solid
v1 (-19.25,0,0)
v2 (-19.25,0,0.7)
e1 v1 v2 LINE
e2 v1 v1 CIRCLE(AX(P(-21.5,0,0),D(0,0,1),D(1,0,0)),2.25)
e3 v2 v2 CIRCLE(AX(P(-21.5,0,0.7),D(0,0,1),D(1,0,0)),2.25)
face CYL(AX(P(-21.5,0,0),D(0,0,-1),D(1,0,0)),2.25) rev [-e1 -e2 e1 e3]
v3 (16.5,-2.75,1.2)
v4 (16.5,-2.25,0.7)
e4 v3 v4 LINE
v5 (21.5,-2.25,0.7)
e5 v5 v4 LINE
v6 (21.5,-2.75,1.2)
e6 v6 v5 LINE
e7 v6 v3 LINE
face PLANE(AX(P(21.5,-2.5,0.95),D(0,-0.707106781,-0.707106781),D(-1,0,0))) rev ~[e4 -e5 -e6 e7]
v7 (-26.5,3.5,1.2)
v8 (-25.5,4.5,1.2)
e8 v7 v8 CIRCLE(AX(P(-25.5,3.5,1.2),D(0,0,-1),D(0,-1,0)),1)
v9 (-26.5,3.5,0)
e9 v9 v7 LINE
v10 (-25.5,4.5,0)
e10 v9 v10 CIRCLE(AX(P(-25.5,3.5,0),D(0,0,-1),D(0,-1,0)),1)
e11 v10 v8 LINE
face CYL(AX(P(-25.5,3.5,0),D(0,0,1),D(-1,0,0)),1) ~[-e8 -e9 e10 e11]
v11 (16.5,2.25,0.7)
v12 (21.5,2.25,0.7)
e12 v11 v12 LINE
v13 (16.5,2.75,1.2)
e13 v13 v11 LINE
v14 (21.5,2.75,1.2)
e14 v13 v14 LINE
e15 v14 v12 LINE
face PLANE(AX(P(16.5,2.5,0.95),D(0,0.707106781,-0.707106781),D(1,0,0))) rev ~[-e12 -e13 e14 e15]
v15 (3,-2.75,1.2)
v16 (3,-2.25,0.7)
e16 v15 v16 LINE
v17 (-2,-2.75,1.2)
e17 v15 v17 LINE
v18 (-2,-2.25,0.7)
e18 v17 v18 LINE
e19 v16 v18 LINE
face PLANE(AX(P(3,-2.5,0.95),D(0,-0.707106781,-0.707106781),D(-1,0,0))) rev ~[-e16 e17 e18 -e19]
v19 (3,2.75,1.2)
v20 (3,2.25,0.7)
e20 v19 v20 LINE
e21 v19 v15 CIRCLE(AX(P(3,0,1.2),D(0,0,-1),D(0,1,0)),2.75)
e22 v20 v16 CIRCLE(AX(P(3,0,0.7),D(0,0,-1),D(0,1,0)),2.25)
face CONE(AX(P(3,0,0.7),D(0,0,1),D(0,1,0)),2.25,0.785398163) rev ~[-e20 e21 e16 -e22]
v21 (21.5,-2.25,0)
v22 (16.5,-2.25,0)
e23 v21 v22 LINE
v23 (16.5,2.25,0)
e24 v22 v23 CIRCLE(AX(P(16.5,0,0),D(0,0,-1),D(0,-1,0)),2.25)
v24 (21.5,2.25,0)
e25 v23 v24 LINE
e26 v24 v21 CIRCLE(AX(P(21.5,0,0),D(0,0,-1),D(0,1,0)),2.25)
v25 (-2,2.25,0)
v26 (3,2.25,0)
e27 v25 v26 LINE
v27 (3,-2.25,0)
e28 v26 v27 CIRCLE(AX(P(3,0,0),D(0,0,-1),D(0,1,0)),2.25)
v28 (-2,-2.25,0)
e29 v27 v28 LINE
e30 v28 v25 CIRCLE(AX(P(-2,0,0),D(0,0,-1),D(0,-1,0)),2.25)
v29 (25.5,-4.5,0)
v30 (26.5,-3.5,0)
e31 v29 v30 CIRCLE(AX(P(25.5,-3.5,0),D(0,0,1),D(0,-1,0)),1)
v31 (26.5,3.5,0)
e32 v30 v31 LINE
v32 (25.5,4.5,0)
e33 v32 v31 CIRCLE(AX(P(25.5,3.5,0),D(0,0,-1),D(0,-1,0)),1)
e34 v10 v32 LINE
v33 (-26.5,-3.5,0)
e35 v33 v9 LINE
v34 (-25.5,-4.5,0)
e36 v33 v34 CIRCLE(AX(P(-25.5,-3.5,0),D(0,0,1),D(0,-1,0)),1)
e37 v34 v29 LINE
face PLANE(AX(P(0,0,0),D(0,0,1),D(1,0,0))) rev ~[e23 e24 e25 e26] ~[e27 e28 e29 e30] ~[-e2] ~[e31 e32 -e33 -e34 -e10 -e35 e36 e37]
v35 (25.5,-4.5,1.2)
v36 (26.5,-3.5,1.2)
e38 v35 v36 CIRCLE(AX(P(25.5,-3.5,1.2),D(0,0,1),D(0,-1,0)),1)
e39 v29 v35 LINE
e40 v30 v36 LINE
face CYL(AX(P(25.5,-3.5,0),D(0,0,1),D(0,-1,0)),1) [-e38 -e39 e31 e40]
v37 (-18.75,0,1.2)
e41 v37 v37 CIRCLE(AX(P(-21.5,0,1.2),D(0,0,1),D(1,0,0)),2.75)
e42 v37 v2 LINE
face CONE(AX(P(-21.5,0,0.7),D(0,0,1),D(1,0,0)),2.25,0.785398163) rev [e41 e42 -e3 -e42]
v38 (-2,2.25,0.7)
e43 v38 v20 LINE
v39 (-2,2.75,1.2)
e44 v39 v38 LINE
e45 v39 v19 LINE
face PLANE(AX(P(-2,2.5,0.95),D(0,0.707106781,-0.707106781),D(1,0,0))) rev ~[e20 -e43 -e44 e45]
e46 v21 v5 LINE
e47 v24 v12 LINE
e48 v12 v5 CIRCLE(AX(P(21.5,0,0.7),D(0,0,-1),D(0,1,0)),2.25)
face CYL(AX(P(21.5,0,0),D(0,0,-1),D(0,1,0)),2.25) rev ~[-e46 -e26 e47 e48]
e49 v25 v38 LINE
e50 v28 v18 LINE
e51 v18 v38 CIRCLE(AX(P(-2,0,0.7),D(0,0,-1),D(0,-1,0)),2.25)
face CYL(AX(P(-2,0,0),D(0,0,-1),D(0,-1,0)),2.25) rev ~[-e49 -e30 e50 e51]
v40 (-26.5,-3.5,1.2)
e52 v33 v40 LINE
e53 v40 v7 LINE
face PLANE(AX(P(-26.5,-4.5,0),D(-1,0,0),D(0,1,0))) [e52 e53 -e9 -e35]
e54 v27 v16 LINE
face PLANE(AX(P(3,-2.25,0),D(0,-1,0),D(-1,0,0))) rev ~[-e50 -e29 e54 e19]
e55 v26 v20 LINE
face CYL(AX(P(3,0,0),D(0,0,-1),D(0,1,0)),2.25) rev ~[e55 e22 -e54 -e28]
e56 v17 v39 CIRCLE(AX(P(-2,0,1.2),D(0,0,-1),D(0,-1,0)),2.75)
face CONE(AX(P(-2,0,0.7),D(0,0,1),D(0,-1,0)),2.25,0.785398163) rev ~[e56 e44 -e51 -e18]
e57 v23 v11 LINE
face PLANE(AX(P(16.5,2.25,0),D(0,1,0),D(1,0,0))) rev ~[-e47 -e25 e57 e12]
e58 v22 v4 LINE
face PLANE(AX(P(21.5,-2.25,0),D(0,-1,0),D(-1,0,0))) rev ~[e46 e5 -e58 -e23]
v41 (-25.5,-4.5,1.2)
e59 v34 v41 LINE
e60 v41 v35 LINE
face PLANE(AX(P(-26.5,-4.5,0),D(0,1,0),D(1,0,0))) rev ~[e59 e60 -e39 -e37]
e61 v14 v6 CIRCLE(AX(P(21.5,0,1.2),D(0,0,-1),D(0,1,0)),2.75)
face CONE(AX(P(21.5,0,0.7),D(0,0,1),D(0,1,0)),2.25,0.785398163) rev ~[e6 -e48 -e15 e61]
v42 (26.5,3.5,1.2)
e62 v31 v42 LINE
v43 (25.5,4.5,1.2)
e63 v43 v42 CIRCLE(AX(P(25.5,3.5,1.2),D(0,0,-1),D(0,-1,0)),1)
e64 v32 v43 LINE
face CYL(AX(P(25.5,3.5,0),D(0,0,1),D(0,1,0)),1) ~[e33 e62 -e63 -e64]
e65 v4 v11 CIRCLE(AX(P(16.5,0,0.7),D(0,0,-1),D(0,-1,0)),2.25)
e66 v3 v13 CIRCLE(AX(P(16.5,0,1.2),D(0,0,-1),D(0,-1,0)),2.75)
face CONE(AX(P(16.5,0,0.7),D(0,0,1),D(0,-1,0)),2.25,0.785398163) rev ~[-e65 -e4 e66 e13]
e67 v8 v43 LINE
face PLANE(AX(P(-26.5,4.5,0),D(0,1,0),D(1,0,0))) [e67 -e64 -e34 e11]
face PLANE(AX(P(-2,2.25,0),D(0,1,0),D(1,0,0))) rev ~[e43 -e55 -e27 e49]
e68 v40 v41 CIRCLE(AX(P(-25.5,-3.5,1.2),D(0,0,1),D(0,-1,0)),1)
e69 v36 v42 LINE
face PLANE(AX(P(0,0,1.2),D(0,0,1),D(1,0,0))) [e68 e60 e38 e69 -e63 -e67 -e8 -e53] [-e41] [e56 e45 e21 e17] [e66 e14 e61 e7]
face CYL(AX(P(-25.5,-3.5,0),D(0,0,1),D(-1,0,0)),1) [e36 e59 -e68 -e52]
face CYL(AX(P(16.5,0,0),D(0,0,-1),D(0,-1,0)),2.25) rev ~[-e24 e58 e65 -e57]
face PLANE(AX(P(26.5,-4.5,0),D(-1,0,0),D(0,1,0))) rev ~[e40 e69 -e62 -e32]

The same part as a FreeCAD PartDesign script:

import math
import FreeCAD as App
import Part
import Sketcher

V = App.Vector
Q = App.Units.Quantity


def edges_at(feature, points):
    """Names of the edges that pass closest to the given points."""
    edges = feature.Shape.Edges
    near = lambda p: min(range(len(edges)), key=lambda i: edges[i].distToShape(Part.Vertex(*p))[0])
    return sorted({f"Edge{near(p) + 1}" for p in points})

doc = App.newDocument("Part")
params = doc.addObject("Spreadsheet::Sheet", "Params")
for row, (alias, value) in enumerate([
    ("sketch1_diameter", "4.5 mm"),
    ("sketch1_width", "53 mm"),
    ("sketch1_width2", "5 mm"),
    ("sketch1_height", "9 mm"),
    ("pad1_length", "1.2 mm"),
    ("fillet_radius", "1 mm"),
    ("chamfer_size", "0.5 mm"),
], start=1):
    params.set(f"A{row}", alias)
    params.set(f"B{row}", "=" + value)
    params.setAlias(f"B{row}", alias)

body = doc.addObject("PartDesign::Body", "Body")

# Sketch on XY plane
sketch1 = body.newObject("Sketcher::SketchObject", "Sketch")
sketch1.AttachmentSupport = (doc.getObject("XY_Plane"), [""])
sketch1.MapMode = "FlatFace"
sketch1.addGeometry([
    Part.LineSegment(V(-26.5, 4.5, 0), V(-26.5, -4.5, 0)),  # 0
    Part.LineSegment(V(-26.5, -4.5, 0), V(26.5, -4.5, 0)),  # 1
    Part.LineSegment(V(26.5, -4.5, 0), V(26.5, 4.5, 0)),  # 2
    Part.LineSegment(V(26.5, 4.5, 0), V(-26.5, 4.5, 0)),  # 3
    Part.Circle(V(-21.5, 0, 0), V(0, 0, 1), 2.2),  # 4
    Part.ArcOfCircle(Part.Circle(V(3, 0, 0), V(0, 0, 1), 2.2), math.radians(-90), math.radians(90)),  # 5
    Part.LineSegment(V(3, -2.2, 0), V(-2, -2.2, 0)),  # 6
    Part.ArcOfCircle(Part.Circle(V(-2, 0, 0), V(0, 0, 1), 2.2), math.radians(90), math.radians(270)),  # 7
    Part.LineSegment(V(-2, 2.2, 0), V(3, 2.2, 0)),  # 8
    Part.ArcOfCircle(Part.Circle(V(21.5, 0, 0), V(0, 0, 1), 2.2), math.radians(-90), math.radians(90)),  # 9
    Part.LineSegment(V(21.5, -2.2, 0), V(16.5, -2.2, 0)),  # 10
    Part.ArcOfCircle(Part.Circle(V(16.5, 0, 0), V(0, 0, 1), 2.2), math.radians(90), math.radians(270)),  # 11
    Part.LineSegment(V(16.5, 2.2, 0), V(21.5, 2.2, 0)),  # 12
], False)
sketch1.addConstraint([
    Sketcher.Constraint("Coincident", 0, 2, 1, 1),
    Sketcher.Constraint("Coincident", 1, 2, 2, 1),
    Sketcher.Constraint("Coincident", 2, 2, 3, 1),
    Sketcher.Constraint("Coincident", 3, 2, 0, 1),
    Sketcher.Constraint("Tangent", 5, 1, 6, 1),
    Sketcher.Constraint("Tangent", 6, 2, 7, 2),
    Sketcher.Constraint("Tangent", 7, 1, 8, 1),
    Sketcher.Constraint("Tangent", 8, 2, 5, 2),
    Sketcher.Constraint("Tangent", 9, 1, 10, 1),
    Sketcher.Constraint("Tangent", 10, 2, 11, 2),
    Sketcher.Constraint("Tangent", 11, 1, 12, 1),
    Sketcher.Constraint("Tangent", 12, 2, 9, 2),
    Sketcher.Constraint("Vertical", 0),
    Sketcher.Constraint("Horizontal", 1),
    Sketcher.Constraint("Vertical", 2),
    Sketcher.Constraint("Horizontal", 3),
    Sketcher.Constraint("Horizontal", 6),
    Sketcher.Constraint("Horizontal", 8),
    Sketcher.Constraint("Horizontal", 10),
    Sketcher.Constraint("Horizontal", 12),
    Sketcher.Constraint("Equal", 4, 5),
    Sketcher.Constraint("Equal", 7, 9),
    Sketcher.Constraint("Symmetric", 4, 3, 9, 3, -1, 1),
    Sketcher.Constraint("Symmetric", 0, 2, 2, 2, -1, 1),
    Sketcher.Constraint("PointOnObject", 4, 3, -1),
    Sketcher.Constraint("PointOnObject", 5, 3, -1),
    Sketcher.Constraint("Equal", 8, 10),
    Sketcher.Constraint("Diameter", 4, Q("4.5 mm")),
    Sketcher.Constraint("DistanceX", 1, 1, 1, 2, Q("53 mm")),
    Sketcher.Constraint("DistanceX", 6, 2, 6, 1, Q("5 mm")),
    Sketcher.Constraint("DistanceY", 0, 2, 0, 1, Q("9 mm")),
    Sketcher.Constraint("DistanceX", -1, 1, 5, 3, Q("3 mm")),
    Sketcher.Constraint("DistanceX", 4, 3, 9, 3, Q("43 mm")),
])
sketch1.setExpression("Constraints[27]", "Params.sketch1_diameter")
sketch1.setExpression("Constraints[28]", "Params.sketch1_width")
sketch1.setExpression("Constraints[29]", "Params.sketch1_width2")
sketch1.setExpression("Constraints[30]", "Params.sketch1_height")
pad1 = body.newObject("PartDesign::Pad", "Pad")
pad1.Profile = sketch1
pad1.setExpression("Length", "Params.pad1_length")
doc.recompute()

fillet = body.newObject("PartDesign::Fillet", "Fillet")
fillet.Base = (pad1, edges_at(pad1, [
    (-26.5, -4.5, 0.6),
    (-26.5, 4.5, 0.6),
    (26.5, -4.5, 0.6),
    (26.5, 4.5, 0.6),
]))
fillet.setExpression("Radius", "Params.fillet_radius")
doc.recompute()

chamfer = body.newObject("PartDesign::Chamfer", "Chamfer")
chamfer.Base = (fillet, edges_at(fillet, [(-23.75, 0, 1.2), (-4.25, 0, 1.2), (14.25, 0, 1.2)]))
chamfer.setExpression("Size", "Params.chamfer_size")

doc.recompute()
